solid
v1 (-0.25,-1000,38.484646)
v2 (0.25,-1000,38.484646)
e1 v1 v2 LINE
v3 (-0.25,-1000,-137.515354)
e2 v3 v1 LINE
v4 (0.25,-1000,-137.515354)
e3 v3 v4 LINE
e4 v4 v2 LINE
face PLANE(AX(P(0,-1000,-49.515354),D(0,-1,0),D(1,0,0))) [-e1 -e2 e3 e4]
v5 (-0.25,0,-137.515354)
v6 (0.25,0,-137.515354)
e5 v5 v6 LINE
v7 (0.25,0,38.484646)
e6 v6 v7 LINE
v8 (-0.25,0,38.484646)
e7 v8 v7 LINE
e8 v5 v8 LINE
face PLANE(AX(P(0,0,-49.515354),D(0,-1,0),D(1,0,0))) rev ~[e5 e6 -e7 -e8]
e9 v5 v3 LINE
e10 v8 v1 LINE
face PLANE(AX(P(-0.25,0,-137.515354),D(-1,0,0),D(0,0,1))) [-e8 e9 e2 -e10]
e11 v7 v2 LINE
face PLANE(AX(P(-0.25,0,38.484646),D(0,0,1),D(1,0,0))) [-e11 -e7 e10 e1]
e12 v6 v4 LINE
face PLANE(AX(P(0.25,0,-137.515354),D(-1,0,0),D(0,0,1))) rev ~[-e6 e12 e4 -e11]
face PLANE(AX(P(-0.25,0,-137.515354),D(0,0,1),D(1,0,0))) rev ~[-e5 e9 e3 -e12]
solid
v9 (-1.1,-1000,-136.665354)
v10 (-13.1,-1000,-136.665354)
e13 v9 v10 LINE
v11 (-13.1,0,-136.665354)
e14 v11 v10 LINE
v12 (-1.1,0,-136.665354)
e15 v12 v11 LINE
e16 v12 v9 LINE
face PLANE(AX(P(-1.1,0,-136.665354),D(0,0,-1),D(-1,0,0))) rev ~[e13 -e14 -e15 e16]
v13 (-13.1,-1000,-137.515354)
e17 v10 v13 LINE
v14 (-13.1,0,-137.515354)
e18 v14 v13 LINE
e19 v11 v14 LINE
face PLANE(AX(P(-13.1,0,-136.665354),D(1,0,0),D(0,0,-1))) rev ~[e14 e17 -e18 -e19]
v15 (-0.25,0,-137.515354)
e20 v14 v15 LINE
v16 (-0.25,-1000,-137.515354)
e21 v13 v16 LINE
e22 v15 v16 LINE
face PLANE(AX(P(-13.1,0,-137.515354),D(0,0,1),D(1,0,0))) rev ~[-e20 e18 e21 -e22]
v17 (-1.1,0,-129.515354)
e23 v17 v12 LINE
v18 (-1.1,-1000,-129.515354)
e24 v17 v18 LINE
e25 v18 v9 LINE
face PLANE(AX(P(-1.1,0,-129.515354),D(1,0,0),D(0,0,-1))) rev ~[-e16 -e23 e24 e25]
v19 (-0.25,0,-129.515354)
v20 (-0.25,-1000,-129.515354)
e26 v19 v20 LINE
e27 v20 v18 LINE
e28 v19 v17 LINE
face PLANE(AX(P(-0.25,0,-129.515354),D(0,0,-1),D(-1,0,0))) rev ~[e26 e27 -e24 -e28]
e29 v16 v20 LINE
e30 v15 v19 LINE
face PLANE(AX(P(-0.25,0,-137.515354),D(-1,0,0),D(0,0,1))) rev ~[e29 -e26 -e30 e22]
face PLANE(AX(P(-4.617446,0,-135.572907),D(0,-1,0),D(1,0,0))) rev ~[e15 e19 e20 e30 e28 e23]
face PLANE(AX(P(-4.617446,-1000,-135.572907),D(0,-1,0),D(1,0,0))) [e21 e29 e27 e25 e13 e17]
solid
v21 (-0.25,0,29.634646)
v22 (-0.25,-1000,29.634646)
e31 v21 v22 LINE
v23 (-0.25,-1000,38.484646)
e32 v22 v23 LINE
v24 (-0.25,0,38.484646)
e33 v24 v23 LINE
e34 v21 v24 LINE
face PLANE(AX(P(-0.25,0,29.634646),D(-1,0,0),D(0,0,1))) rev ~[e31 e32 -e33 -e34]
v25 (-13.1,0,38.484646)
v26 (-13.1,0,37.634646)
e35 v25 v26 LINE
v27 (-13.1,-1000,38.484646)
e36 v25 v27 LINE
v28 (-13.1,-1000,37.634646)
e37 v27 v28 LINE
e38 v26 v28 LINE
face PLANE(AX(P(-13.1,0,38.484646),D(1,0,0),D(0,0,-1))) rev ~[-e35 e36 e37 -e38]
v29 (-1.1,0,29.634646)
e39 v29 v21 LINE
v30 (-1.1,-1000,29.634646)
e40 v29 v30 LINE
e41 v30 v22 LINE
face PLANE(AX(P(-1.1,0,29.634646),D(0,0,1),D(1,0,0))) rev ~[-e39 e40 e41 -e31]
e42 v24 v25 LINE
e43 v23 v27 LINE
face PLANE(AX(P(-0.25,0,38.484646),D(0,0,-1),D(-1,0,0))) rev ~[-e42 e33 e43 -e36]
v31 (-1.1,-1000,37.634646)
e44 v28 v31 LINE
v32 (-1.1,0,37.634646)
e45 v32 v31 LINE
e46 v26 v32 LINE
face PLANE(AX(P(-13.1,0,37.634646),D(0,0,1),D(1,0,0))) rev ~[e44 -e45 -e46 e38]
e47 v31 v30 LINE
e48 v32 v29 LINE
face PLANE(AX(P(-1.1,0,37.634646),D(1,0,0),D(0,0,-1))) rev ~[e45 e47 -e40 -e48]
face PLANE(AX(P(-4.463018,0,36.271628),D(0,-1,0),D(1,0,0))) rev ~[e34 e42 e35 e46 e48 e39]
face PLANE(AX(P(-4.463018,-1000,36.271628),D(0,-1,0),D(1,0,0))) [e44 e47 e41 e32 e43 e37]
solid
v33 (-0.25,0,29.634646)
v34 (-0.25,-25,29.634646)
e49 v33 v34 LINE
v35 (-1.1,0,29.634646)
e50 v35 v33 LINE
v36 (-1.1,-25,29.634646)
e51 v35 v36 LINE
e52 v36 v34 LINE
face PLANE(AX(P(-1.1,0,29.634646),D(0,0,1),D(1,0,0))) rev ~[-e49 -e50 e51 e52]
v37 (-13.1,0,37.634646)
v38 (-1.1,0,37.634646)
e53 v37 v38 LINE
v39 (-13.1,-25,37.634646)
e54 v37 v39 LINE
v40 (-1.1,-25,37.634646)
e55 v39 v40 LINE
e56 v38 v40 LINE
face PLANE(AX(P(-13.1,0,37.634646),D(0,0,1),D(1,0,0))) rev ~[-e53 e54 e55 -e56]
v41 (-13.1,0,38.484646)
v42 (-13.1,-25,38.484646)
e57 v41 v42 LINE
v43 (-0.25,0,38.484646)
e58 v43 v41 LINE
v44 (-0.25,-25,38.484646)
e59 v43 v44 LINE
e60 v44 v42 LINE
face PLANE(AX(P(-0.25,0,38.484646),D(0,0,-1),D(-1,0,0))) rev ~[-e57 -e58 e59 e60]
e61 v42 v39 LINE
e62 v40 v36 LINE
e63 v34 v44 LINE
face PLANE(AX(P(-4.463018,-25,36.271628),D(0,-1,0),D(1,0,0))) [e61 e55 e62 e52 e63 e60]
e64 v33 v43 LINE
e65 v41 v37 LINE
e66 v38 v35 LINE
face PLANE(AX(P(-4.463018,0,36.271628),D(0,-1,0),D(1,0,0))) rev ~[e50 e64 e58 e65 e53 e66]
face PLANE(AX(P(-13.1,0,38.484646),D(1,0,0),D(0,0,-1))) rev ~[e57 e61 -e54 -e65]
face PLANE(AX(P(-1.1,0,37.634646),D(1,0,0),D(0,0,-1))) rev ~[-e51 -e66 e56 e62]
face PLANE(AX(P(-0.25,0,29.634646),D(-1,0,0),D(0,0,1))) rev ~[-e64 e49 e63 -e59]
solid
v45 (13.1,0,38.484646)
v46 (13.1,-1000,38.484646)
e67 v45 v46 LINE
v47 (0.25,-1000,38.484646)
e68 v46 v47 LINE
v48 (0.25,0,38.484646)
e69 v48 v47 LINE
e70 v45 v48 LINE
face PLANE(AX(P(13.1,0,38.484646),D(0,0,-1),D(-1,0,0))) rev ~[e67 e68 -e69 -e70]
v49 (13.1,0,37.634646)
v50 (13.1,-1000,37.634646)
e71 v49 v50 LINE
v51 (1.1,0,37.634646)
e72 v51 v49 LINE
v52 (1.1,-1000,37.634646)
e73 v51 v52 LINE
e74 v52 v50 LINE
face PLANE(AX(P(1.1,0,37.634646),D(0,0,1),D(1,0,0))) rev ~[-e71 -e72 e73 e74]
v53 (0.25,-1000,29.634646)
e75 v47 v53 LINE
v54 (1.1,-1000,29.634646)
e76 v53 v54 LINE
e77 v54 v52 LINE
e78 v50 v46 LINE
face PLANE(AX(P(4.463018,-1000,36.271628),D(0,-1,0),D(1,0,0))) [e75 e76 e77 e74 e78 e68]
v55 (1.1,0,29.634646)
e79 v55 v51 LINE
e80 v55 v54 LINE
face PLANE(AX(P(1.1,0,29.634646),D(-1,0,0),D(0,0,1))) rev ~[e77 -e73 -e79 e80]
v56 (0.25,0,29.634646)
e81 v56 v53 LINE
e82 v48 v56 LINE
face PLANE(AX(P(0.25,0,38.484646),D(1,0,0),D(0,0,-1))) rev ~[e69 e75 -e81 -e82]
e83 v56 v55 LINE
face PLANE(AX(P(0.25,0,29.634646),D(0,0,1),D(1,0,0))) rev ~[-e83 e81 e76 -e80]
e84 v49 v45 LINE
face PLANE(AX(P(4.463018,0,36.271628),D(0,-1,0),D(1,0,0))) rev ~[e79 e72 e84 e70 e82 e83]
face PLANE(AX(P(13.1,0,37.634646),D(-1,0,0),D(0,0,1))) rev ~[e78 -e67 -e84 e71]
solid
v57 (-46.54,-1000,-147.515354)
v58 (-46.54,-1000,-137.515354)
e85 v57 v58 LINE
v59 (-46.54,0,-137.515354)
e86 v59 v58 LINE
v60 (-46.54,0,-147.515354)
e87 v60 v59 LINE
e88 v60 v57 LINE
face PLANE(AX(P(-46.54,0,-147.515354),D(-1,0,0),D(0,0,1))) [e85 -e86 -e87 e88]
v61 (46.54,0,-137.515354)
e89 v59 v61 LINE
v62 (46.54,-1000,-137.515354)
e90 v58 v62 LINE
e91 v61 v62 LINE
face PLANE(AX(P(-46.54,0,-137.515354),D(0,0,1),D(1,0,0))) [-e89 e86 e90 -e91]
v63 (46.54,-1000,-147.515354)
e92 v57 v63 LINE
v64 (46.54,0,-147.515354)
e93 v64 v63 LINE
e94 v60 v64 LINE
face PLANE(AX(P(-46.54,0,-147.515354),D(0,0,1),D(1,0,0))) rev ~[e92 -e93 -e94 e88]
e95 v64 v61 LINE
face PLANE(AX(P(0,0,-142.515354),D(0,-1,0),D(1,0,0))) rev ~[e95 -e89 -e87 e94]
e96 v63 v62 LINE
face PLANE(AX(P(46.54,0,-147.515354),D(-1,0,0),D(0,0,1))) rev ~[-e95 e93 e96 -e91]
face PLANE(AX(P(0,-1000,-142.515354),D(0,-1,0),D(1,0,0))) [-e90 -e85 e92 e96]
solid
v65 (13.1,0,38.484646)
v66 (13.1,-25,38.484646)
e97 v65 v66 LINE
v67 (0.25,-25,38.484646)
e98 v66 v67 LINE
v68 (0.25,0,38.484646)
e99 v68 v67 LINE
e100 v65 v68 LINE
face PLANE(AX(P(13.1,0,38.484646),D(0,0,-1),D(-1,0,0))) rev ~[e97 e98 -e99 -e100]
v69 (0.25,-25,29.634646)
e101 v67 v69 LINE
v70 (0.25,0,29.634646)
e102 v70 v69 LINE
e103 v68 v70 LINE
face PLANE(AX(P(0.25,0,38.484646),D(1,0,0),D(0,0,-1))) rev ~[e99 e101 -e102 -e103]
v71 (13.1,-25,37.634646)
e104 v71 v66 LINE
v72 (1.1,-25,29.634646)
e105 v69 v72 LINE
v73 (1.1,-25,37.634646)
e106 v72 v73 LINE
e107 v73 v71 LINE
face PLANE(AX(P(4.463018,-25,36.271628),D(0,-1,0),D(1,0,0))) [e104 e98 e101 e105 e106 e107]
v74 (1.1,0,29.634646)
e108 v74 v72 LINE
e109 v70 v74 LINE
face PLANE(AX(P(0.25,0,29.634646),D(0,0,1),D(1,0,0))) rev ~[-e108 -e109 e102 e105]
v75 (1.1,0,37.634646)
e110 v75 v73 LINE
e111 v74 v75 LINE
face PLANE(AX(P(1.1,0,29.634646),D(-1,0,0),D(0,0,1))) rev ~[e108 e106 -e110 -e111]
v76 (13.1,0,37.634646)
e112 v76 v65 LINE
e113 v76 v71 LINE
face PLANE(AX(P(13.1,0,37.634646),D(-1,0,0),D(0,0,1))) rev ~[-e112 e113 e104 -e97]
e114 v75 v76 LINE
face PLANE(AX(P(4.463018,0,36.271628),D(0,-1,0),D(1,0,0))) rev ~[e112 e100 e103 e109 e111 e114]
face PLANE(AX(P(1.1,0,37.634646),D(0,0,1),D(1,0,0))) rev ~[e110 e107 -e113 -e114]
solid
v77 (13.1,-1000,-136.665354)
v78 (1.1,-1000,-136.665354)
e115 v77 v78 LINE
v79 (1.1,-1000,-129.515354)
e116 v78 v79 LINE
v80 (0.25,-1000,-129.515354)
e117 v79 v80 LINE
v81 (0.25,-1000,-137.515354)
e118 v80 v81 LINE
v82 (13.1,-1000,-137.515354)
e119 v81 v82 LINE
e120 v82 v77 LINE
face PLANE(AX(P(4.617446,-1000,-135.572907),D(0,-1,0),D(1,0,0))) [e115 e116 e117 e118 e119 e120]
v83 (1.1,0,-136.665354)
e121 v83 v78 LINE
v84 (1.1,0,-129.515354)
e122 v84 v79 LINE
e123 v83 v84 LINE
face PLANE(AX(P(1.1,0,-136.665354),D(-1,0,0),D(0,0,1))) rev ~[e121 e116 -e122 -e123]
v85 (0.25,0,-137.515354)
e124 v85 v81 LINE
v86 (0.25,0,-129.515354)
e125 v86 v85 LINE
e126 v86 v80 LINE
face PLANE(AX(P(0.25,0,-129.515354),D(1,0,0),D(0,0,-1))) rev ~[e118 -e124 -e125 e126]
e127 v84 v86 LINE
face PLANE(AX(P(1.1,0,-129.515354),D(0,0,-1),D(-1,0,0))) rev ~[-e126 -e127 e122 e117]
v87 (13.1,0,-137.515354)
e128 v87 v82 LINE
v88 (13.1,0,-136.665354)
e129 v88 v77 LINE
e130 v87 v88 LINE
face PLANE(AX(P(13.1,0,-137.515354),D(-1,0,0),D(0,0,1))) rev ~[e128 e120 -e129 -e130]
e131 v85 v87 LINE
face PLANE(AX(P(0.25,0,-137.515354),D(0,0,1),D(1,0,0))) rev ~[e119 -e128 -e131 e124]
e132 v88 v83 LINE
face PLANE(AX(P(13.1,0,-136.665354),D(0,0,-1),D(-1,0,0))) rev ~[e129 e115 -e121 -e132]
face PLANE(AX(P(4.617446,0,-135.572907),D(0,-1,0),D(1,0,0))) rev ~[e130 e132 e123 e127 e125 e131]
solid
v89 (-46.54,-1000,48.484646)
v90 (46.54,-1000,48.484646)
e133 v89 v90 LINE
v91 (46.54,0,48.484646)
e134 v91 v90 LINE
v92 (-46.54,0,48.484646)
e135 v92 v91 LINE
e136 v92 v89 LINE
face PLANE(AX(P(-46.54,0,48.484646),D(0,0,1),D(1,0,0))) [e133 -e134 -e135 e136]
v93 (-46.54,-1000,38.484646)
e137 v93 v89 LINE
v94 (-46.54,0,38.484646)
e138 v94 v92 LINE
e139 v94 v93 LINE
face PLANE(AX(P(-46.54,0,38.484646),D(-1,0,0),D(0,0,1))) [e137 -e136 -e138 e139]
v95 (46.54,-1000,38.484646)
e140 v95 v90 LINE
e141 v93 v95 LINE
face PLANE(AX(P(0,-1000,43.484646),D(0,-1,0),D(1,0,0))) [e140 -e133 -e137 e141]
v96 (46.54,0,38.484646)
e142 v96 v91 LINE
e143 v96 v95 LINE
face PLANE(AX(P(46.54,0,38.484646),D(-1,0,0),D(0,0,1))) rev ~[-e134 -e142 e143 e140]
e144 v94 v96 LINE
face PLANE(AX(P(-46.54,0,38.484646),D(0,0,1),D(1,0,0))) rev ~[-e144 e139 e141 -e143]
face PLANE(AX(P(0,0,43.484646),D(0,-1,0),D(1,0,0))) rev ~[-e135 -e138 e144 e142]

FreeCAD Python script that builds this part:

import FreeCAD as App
import Part
import Sketcher
from FreeCAD import Vector


def add_polygon(sketch, points):
    """Adds a closed chain of lines whose ends are joined by coincident constraints."""
    first, n = sketch.GeometryCount, len(points)
    for a, b in zip(points, points[1:] + points[:1]):
        sketch.addGeometry(Part.LineSegment(App.Vector(*a, 0), App.Vector(*b, 0)), False)
    for i in range(n):
        sketch.addConstraint(Sketcher.Constraint("Coincident", first + i, 2, first + (i + 1) % n, 1))

doc = App.newDocument("Part")
body = doc.addObject("PartDesign::Body", "Body")

sketch1 = body.newObject("Sketcher::SketchObject", "Sketch")
sketch1.AttachmentSupport = (doc.getObject("XZ_Plane"), [""])
sketch1.MapMode = "FlatFace"
add_polygon(sketch1, [(-0.2, 38.5), (-0.2, -137.5), (0.2, -137.5), (0.2, 38.5)])
sketch1.addConstraint([
    Sketcher.Constraint("Vertical", 0),
    Sketcher.Constraint("Horizontal", 1),
    Sketcher.Constraint("Vertical", 2),
    Sketcher.Constraint("Horizontal", 3),
    Sketcher.Constraint("DistanceY", 0, 2, 0, 1, 176.0),
    Sketcher.Constraint("DistanceX", 1, 1, 1, 2, 0.5),
    Sketcher.Constraint("DistanceX", 0, 2, -1, 1, 0.25),
    Sketcher.Constraint("DistanceY", 0, 2, -1, 1, 137.515354),
])
pad1 = body.newObject("PartDesign::Pad", "Pad")
pad1.Profile = sketch1
pad1.Length = 1000
body2 = doc.addObject("PartDesign::Body", "Body001")

sketch2 = body2.newObject("Sketcher::SketchObject", "Sketch001")
sketch2.AttachmentSupport = (doc.getObject("XZ_Plane001"), [""])
sketch2.MapMode = "FlatFace"
add_polygon(sketch2, [(-47, -138), (-47, -148), (47, -148), (47, -138)])
sketch2.addConstraint([
    Sketcher.Constraint("Vertical", 0),
    Sketcher.Constraint("Horizontal", 1),
    Sketcher.Constraint("Vertical", 2),
    Sketcher.Constraint("Horizontal", 3),
    Sketcher.Constraint("DistanceY", 0, 2, 0, 1, 10.0),
    Sketcher.Constraint("DistanceX", 1, 1, 1, 2, 93.08),
    Sketcher.Constraint("DistanceX", 0, 2, -1, 1, 46.54),
    Sketcher.Constraint("DistanceY", 0, 2, -1, 1, 147.515354),
])
pad2 = body2.newObject("PartDesign::Pad", "Pad001")
pad2.Profile = sketch2
pad2.Length = 1000
body3 = doc.addObject("PartDesign::Body", "Body002")

sketch3 = body3.newObject("Sketcher::SketchObject", "Sketch002")
sketch3.AttachmentSupport = (doc.getObject("XZ_Plane002"), [""])
sketch3.MapMode = "FlatFace"
add_polygon(sketch3, [(-47, 48), (-47, 38), (47, 38), (47, 48)])
sketch3.addConstraint([
    Sketcher.Constraint("Vertical", 0),
    Sketcher.Constraint("Horizontal", 1),
    Sketcher.Constraint("Vertical", 2),
    Sketcher.Constraint("Horizontal", 3),
    Sketcher.Constraint("DistanceY", 0, 2, 0, 1, 10.0),
    Sketcher.Constraint("DistanceX", 1, 1, 1, 2, 93.08),
    Sketcher.Constraint("DistanceX", 0, 2, -1, 1, 46.54),
    Sketcher.Constraint("DistanceY", -1, 1, 0, 2, 38.484646),
])
pad3 = body3.newObject("PartDesign::Pad", "Pad002")
pad3.Profile = sketch3
pad3.Length = 1000
body4 = doc.addObject("PartDesign::Body", "Body003")

sketch4 = body4.newObject("Sketcher::SketchObject", "Sketch003")
sketch4.AttachmentSupport = (doc.getObject("XZ_Plane003"), [""])
sketch4.MapMode = "FlatFace"
add_polygon(sketch4, [(-13.1, -136.7), (-13.1, -137.5), (-0.2, -137.5), (-0.2, -129.5), (-1.1, -129.5), (-1.1, -136.7)])
sketch4.addConstraint([
    Sketcher.Constraint("Vertical", 0),
    Sketcher.Constraint("Horizontal", 1),
    Sketcher.Constraint("Vertical", 2),
    Sketcher.Constraint("Horizontal", 3),
    Sketcher.Constraint("Vertical", 4),
    Sketcher.Constraint("Horizontal", 5),
    Sketcher.Constraint("Equal", 3, 0),
    Sketcher.Constraint("DistanceX", 5, 2, 5, 1, 12.0),
    Sketcher.Constraint("DistanceY", 2, 1, 2, 2, 8.0),
    Sketcher.Constraint("DistanceX", 1, 1, 1, 2, 12.85),
    Sketcher.Constraint("DistanceX", 0, 2, -1, 1, 13.1),
    Sketcher.Constraint("DistanceY", 0, 2, -1, 1, 137.515354),
])
pad4 = body4.newObject("PartDesign::Pad", "Pad003")
pad4.Profile = sketch4
pad4.Length = 1000
body5 = doc.addObject("PartDesign::Body", "Body004")

sketch5 = body5.newObject("Sketcher::SketchObject", "Sketch004")
sketch5.AttachmentSupport = (doc.getObject("XZ_Plane004"), [""])
sketch5.MapMode = "FlatFace"
add_polygon(sketch5, [(-0.2, 38.5), (-13.1, 38.5), (-13.1, 37.6), (-1.1, 37.6), (-1.1, 29.6), (-0.2, 29.6)])
sketch5.addConstraint([
    Sketcher.Constraint("Horizontal", 0),
    Sketcher.Constraint("Vertical", 1),
    Sketcher.Constraint("Horizontal", 2),
    Sketcher.Constraint("Vertical", 3),
    Sketcher.Constraint("Horizontal", 4),
    Sketcher.Constraint("Vertical", 5),
    Sketcher.Constraint("Equal", 4, 1),
    Sketcher.Constraint("DistanceX", 2, 1, 2, 2, 12.0),
    Sketcher.Constraint("DistanceY", 3, 2, 3, 1, 8.0),
    Sketcher.Constraint("DistanceX", 0, 2, 0, 1, 12.85),
    Sketcher.Constraint("DistanceX", 0, 2, -1, 1, 13.1),
    Sketcher.Constraint("DistanceY", -1, 1, 0, 2, 38.484646),
])
pad5 = body5.newObject("PartDesign::Pad", "Pad004")
pad5.Profile = sketch5
pad5.Length = 1000
body6 = doc.addObject("PartDesign::Body", "Body005")

sketch6 = body6.newObject("Sketcher::SketchObject", "Sketch005")
sketch6.AttachmentSupport = (doc.getObject("XZ_Plane005"), [""])
sketch6.MapMode = "FlatFace"
add_polygon(sketch6, [(0.2, 38.5), (0.2, 29.6), (1.1, 29.6), (1.1, 37.6), (13.1, 37.6), (13.1, 38.5)])
sketch6.addConstraint([
    Sketcher.Constraint("Vertical", 0),
    Sketcher.Constraint("Horizontal", 1),
    Sketcher.Constraint("Vertical", 2),
    Sketcher.Constraint("Horizontal", 3),
    Sketcher.Constraint("Vertical", 4),
    Sketcher.Constraint("Horizontal", 5),
    Sketcher.Constraint("Equal", 1, 4),
    Sketcher.Constraint("DistanceX", 3, 1, 3, 2, 12.0),
    Sketcher.Constraint("DistanceY", 2, 1, 2, 2, 8.0),
    Sketcher.Constraint("DistanceX", 1, 1, 1, 2, 0.85),
    Sketcher.Constraint("DistanceX", -1, 1, 1, 2, 1.1),
    Sketcher.Constraint("DistanceY", -1, 1, 0, 2, 29.634646),
])
pad6 = body6.newObject("PartDesign::Pad", "Pad005")
pad6.Profile = sketch6
pad6.Length = 1000
body7 = doc.addObject("PartDesign::Body", "Body006")

sketch7 = body7.newObject("Sketcher::SketchObject", "Sketch006")
sketch7.AttachmentSupport = (doc.getObject("XZ_Plane006"), [""])
sketch7.MapMode = "FlatFace"
add_polygon(sketch7, [(-0.2, 38.5), (-13.1, 38.5), (-13.1, 37.6), (-1.1, 37.6), (-1.1, 29.6), (-0.2, 29.6)])
sketch7.addConstraint([
    Sketcher.Constraint("Horizontal", 0),
    Sketcher.Constraint("Vertical", 1),
    Sketcher.Constraint("Horizontal", 2),
    Sketcher.Constraint("Vertical", 3),
    Sketcher.Constraint("Horizontal", 4),
    Sketcher.Constraint("Vertical", 5),
    Sketcher.Constraint("Equal", 4, 1),
    Sketcher.Constraint("DistanceX", 2, 1, 2, 2, 12.0),
    Sketcher.Constraint("DistanceY", 3, 2, 3, 1, 8.0),
    Sketcher.Constraint("DistanceX", 0, 2, 0, 1, 12.85),
    Sketcher.Constraint("DistanceX", 0, 2, -1, 1, 13.1),
    Sketcher.Constraint("DistanceY", -1, 1, 0, 2, 38.484646),
])
pad7 = body7.newObject("PartDesign::Pad", "Pad006")
pad7.Profile = sketch7
pad7.Length = 25
body8 = doc.addObject("PartDesign::Body", "Body007")

sketch8 = body8.newObject("Sketcher::SketchObject", "Sketch007")
sketch8.AttachmentSupport = (doc.getObject("XZ_Plane007"), [""])
sketch8.MapMode = "FlatFace"
add_polygon(sketch8, [(0.2, 38.5), (0.2, 29.6), (1.1, 29.6), (1.1, 37.6), (13.1, 37.6), (13.1, 38.5)])
sketch8.addConstraint([
    Sketcher.Constraint("Vertical", 0),
    Sketcher.Constraint("Horizontal", 1),
    Sketcher.Constraint("Vertical", 2),
    Sketcher.Constraint("Horizontal", 3),
    Sketcher.Constraint("Vertical", 4),
    Sketcher.Constraint("Horizontal", 5),
    Sketcher.Constraint("Equal", 1, 4),
    Sketcher.Constraint("DistanceX", 3, 1, 3, 2, 12.0),
    Sketcher.Constraint("DistanceY", 2, 1, 2, 2, 8.0),
    Sketcher.Constraint("DistanceX", 1, 1, 1, 2, 0.85),
    Sketcher.Constraint("DistanceX", -1, 1, 1, 2, 1.1),
    Sketcher.Constraint("DistanceY", -1, 1, 0, 2, 29.634646),
])
pad8 = body8.newObject("PartDesign::Pad", "Pad007")
pad8.Profile = sketch8
pad8.Length = 25
body9 = doc.addObject("PartDesign::Body", "Body008")

sketch9 = body9.newObject("Sketcher::SketchObject", "Sketch008")
sketch9.AttachmentSupport = (doc.getObject("XZ_Plane008"), [""])
sketch9.MapMode = "FlatFace"
add_polygon(sketch9, [(1.1, -129.5), (0.2, -129.5), (0.2, -137.5), (13.1, -137.5), (13.1, -136.7), (1.1, -136.7)])
sketch9.addConstraint([
    Sketcher.Constraint("Horizontal", 0),
    Sketcher.Constraint("Vertical", 1),
    Sketcher.Constraint("Horizontal", 2),
    Sketcher.Constraint("Vertical", 3),
    Sketcher.Constraint("Horizontal", 4),
    Sketcher.Constraint("Vertical", 5),
    Sketcher.Constraint("Equal", 0, 3),
    Sketcher.Constraint("DistanceX", 4, 2, 4, 1, 12.0),
    Sketcher.Constraint("DistanceY", 1, 2, 1, 1, 8.0),
    Sketcher.Constraint("DistanceX", 0, 2, 0, 1, 0.85),
    Sketcher.Constraint("DistanceX", -1, 1, 2, 2, 13.1),
    Sketcher.Constraint("DistanceY", 0, 2, -1, 1, 129.515354),
])
pad9 = body9.newObject("PartDesign::Pad", "Pad008")
pad9.Profile = sketch9
pad9.Length = 1000

doc.recompute()
